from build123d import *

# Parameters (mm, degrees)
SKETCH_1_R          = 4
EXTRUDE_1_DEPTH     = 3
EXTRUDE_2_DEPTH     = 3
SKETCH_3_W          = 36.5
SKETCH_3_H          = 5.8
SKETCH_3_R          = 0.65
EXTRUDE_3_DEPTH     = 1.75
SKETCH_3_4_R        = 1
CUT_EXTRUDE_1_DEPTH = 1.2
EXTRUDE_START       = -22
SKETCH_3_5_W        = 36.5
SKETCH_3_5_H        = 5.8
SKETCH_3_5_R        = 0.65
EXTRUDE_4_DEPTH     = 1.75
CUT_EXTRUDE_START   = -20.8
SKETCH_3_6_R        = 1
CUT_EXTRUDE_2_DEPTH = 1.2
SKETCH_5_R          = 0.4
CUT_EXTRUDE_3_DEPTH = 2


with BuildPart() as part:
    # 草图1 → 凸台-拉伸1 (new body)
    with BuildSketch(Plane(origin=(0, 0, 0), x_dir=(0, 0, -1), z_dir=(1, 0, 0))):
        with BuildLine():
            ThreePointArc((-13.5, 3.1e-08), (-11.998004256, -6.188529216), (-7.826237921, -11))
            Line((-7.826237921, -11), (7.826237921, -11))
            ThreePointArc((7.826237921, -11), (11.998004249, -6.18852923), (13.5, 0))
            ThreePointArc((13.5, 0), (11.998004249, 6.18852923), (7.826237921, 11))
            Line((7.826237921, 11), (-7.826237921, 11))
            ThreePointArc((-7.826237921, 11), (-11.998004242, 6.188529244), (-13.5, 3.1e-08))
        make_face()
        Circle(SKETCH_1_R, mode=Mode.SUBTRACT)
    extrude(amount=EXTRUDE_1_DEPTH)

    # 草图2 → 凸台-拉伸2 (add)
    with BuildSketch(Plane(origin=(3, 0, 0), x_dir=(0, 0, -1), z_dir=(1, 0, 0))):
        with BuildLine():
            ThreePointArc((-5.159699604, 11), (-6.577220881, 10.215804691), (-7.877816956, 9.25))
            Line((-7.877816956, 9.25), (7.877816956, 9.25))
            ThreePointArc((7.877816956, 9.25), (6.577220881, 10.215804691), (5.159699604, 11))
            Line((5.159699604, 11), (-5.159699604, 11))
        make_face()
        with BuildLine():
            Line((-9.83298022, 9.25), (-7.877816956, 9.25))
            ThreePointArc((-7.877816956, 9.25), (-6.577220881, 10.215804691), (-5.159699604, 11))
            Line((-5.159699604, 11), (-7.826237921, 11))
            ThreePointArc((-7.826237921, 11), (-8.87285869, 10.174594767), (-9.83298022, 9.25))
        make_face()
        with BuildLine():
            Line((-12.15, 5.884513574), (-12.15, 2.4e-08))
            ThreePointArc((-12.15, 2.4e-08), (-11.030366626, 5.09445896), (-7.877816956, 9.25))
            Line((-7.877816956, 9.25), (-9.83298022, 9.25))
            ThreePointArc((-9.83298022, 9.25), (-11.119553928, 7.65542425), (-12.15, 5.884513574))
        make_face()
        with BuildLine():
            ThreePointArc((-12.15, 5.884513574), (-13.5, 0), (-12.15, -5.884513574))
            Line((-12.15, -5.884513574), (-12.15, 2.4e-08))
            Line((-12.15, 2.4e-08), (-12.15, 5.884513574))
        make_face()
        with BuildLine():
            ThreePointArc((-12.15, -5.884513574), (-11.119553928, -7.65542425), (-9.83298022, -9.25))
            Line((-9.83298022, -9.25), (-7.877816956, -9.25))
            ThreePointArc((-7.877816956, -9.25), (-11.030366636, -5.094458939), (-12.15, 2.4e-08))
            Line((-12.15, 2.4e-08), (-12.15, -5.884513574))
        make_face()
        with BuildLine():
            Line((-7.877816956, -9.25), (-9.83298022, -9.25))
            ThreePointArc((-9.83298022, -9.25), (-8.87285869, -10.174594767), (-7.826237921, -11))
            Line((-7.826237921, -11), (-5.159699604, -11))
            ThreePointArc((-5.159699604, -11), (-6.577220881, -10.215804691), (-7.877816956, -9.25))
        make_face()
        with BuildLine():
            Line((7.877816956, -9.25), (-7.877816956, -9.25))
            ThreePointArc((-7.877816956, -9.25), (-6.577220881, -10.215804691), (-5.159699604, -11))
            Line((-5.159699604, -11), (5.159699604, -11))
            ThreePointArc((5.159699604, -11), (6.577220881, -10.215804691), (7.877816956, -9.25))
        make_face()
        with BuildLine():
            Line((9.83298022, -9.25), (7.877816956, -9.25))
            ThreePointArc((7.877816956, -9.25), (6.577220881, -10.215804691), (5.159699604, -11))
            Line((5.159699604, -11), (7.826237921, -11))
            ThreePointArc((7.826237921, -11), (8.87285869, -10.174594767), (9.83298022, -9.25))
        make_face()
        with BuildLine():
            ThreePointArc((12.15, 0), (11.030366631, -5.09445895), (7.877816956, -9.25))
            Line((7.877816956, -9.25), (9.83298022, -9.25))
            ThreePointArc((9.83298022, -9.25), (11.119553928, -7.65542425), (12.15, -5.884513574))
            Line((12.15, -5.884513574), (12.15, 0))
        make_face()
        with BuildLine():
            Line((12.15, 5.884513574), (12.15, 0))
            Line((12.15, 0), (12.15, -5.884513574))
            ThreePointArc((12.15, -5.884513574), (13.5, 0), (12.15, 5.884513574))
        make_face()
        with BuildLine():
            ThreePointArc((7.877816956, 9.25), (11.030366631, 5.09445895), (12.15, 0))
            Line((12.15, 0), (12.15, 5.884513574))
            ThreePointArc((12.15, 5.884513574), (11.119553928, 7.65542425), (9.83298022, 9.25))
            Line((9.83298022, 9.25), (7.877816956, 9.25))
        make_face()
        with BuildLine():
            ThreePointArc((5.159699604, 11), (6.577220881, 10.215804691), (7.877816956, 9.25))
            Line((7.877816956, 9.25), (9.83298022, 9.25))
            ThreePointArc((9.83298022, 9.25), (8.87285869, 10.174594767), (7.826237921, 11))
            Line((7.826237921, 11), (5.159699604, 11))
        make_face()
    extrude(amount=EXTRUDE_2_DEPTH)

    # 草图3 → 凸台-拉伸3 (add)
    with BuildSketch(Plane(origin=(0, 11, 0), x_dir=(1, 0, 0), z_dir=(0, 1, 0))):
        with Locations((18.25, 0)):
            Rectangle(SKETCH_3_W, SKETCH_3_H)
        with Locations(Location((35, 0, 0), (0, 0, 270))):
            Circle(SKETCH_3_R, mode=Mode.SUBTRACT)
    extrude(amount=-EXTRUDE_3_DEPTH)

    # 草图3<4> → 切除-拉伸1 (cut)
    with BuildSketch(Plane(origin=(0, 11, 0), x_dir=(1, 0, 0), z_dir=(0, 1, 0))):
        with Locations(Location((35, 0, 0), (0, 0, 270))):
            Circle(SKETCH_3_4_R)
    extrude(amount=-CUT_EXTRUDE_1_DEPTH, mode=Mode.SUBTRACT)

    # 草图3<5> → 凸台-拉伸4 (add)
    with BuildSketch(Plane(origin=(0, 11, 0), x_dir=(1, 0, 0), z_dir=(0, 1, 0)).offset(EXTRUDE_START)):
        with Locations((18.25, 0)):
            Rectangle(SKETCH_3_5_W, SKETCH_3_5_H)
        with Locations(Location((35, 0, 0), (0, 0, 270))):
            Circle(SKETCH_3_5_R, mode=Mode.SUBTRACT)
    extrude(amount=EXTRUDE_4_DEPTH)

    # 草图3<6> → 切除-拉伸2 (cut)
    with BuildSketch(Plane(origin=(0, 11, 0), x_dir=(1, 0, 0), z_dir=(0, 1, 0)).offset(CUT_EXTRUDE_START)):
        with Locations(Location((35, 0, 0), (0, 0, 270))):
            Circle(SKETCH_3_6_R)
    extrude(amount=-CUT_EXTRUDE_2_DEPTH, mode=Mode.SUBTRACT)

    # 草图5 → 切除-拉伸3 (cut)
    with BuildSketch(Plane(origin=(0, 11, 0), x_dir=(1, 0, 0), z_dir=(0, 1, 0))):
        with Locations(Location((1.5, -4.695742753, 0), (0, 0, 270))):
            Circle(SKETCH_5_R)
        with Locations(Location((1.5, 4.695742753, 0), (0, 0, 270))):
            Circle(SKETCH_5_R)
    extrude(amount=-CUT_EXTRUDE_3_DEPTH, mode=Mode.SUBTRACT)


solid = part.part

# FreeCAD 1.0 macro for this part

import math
import FreeCAD as App
import Part
import Sketcher

V = App.Vector
Q = App.Units.Quantity

doc = App.newDocument("Part")
body = doc.addObject("PartDesign::Body", "Body")

# Sketch on YZ plane
sketch1 = body.newObject("Sketcher::SketchObject", "Sketch")
sketch1.AttachmentSupport = (doc.getObject("YZ_Plane"), [""])
sketch1.MapMode = "FlatFace"
sketch1.addGeometry([
    Part.ArcOfCircle(Part.Circle(V(0, 0, 0), V(0, 0, 1), 13.5), math.radians(90), math.radians(145)),  # 0
    Part.LineSegment(V(-11, 7.8, 0), V(-11, -7.8, 0)),  # 1
    Part.ArcOfCircle(Part.Circle(V(0, 0, 0), V(0, 0, 1), 13.5), math.radians(-145), math.radians(-90)),  # 2
    Part.ArcOfCircle(Part.Circle(V(0, 0, 0), V(0, 0, 1), 13.5), math.radians(-90), math.radians(-35)),  # 3
    Part.LineSegment(V(11, -7.8, 0), V(11, 7.8, 0)),  # 4
    Part.ArcOfCircle(Part.Circle(V(0, 0, 0), V(0, 0, 1), 13.5), math.radians(35), math.radians(90)),  # 5
    Part.Circle(V(0, 0, 0), V(0, 0, 1), 4),  # 6
], False)
sketch1.addConstraint([
    Sketcher.Constraint("Coincident", 0, 2, 1, 1),
    Sketcher.Constraint("Coincident", 1, 2, 2, 1),
    Sketcher.Constraint("Tangent", 2, 2, 3, 1),
    Sketcher.Constraint("Coincident", 3, 2, 4, 1),
    Sketcher.Constraint("Coincident", 4, 2, 5, 1),
    Sketcher.Constraint("Tangent", 5, 2, 0, 1),
    Sketcher.Constraint("Vertical", 1),
    Sketcher.Constraint("Vertical", 4),
    Sketcher.Constraint("Coincident", 0, 3, -1, 1),
    Sketcher.Constraint("Coincident", 2, 3, -1, 1),
    Sketcher.Constraint("Coincident", 6, 3, -1, 1),
    Sketcher.Constraint("Equal", 0, 2),
    Sketcher.Constraint("Equal", 2, 3),
    Sketcher.Constraint("Equal", 3, 5),
    Sketcher.Constraint("PointOnObject", 2, 2, -2),
    Sketcher.Constraint("PointOnObject", 5, 2, -2),
    Sketcher.Constraint("Horizontal", 1, 2, 3, 2),
    Sketcher.Constraint("Diameter", 6, Q("8 mm")),
    Sketcher.Constraint("Radius", 0, Q("13.5 mm")),
    Sketcher.Constraint("DistanceX", 0, 2, -1, 1, Q("11 mm")),
])
pad1 = body.newObject("PartDesign::Pad", "Pad")
pad1.Profile = sketch1
pad1.Length = 3

# Sketch on YZ plane
sketch2 = body.newObject("Sketcher::SketchObject", "Sketch001")
sketch2.AttachmentSupport = (doc.getObject("YZ_Plane"), [""])
sketch2.MapMode = "FlatFace"
sketch2.AttachmentOffset = App.Placement(V(0, 0, 3), App.Rotation())
sketch2.addGeometry([
    Part.ArcOfCircle(Part.Circle(V(0, 0, 0), V(0, 0, 1), 13.5), math.radians(-64.16), math.radians(-46.75)),  # 0
    Part.ArcOfCircle(Part.Circle(V(0, 0, 0), V(0, 0, 1), 13.5), math.radians(-46.75), math.radians(-35.43)),  # 1
    Part.LineSegment(V(11, -7.8, 0), V(11, 7.8, 0)),  # 2
    Part.ArcOfCircle(Part.Circle(V(0, 0, 0), V(0, 0, 1), 13.5), math.radians(35.43), math.radians(46.75)),  # 3
    Part.ArcOfCircle(Part.Circle(V(0, 0, 0), V(0, 0, 1), 13.5), math.radians(46.75), math.radians(64.16)),  # 4
    Part.ArcOfCircle(Part.Circle(V(0, 0, 0), V(0, 0, 1), 13.5), math.radians(64), math.radians(116)),  # 5
    Part.ArcOfCircle(Part.Circle(V(0, 0, 0), V(0, 0, 1), 13.5), math.radians(115.84), math.radians(133.25)),  # 6
    Part.ArcOfCircle(Part.Circle(V(0, 0, 0), V(0, 0, 1), 13.5), math.radians(133.25), math.radians(144.57)),  # 7
    Part.LineSegment(V(-11, 7.8, 0), V(-11, -7.8, 0)),  # 8
    Part.ArcOfCircle(Part.Circle(V(0, 0, 0), V(0, 0, 1), 13.5), math.radians(-144.57), math.radians(-133.25)),  # 9
    Part.ArcOfCircle(Part.Circle(V(0, 0, 0), V(0, 0, 1), 13.5), math.radians(-133.25), math.radians(-115.84)),  # 10
    Part.ArcOfCircle(Part.Circle(V(0, 0, 0), V(0, 0, 1), 13.5), math.radians(-116), math.radians(-64)),  # 11
    Part.LineSegment(V(9.2, 7.9, 0), V(9.2, -7.9, 0)),  # 12
    Part.ArcOfCircle(Part.Circle(V(0, 0, 0), V(0, 0, 1), 12.1), math.radians(-90), math.radians(-40)),  # 13
    Part.ArcOfCircle(Part.Circle(V(0, 0, 0), V(0, 0, 1), 12.1), math.radians(-140), math.radians(-90)),  # 14
    Part.LineSegment(V(-9.2, -7.9, 0), V(-9.2, 7.9, 0)),  # 15
    Part.ArcOfCircle(Part.Circle(V(0, 0, 0), V(0, 0, 1), 12.1), math.radians(90), math.radians(140)),  # 16
    Part.ArcOfCircle(Part.Circle(V(0, 0, 0), V(0, 0, 1), 12.1), math.radians(40), math.radians(90)),  # 17
], False)
sketch2.addConstraint([
    Sketcher.Constraint("Tangent", 0, 2, 1, 1),
    Sketcher.Constraint("Coincident", 1, 2, 2, 1),
    Sketcher.Constraint("Coincident", 2, 2, 3, 1),
    Sketcher.Constraint("Tangent", 3, 2, 4, 1),
    Sketcher.Constraint("Tangent", 4, 2, 5, 1),
    Sketcher.Constraint("Tangent", 5, 2, 6, 1),
    Sketcher.Constraint("Tangent", 6, 2, 7, 1),
    Sketcher.Constraint("Coincident", 7, 2, 8, 1),
    Sketcher.Constraint("Coincident", 8, 2, 9, 1),
    Sketcher.Constraint("Tangent", 9, 2, 10, 1),
    Sketcher.Constraint("Tangent", 10, 2, 11, 1),
    Sketcher.Constraint("Tangent", 11, 2, 0, 1),
    Sketcher.Constraint("Coincident", 12, 2, 13, 2),
    Sketcher.Constraint("Tangent", 13, 1, 14, 2),
    Sketcher.Constraint("Coincident", 14, 1, 15, 1),
    Sketcher.Constraint("Coincident", 15, 2, 16, 2),
    Sketcher.Constraint("Tangent", 16, 1, 17, 2),
    Sketcher.Constraint("Coincident", 17, 1, 12, 1),
    Sketcher.Constraint("Vertical", 2),
    Sketcher.Constraint("Vertical", 8),
    Sketcher.Constraint("Vertical", 12),
    Sketcher.Constraint("Vertical", 15),
    Sketcher.Constraint("Coincident", 0, 3, -1, 1),
    Sketcher.Constraint("Coincident", 3, 3, -1, 1),
    Sketcher.Constraint("Coincident", 5, 3, -1, 1),
    Sketcher.Constraint("Coincident", 7, 3, -1, 1),
    Sketcher.Constraint("Coincident", 9, 3, -1, 1),
    Sketcher.Constraint("Coincident", 13, 3, -1, 1),
    Sketcher.Constraint("Coincident", 16, 3, -1, 1),
    Sketcher.Constraint("Equal", 0, 1),
    Sketcher.Constraint("Equal", 1, 3),
    Sketcher.Constraint("Equal", 7, 9),
    Sketcher.Constraint("Equal", 13, 14),
    Sketcher.Constraint("Equal", 14, 16),
    Sketcher.Constraint("Equal", 16, 17),
    Sketcher.Constraint("PointOnObject", 13, 1, -2),
    Sketcher.Constraint("PointOnObject", 16, 1, -2),
    Sketcher.Constraint("Horizontal", 4, 2, 5, 2),
    Sketcher.Constraint("Horizontal", 3, 2, 6, 2),
    Sketcher.Constraint("Horizontal", 2, 2, 7, 2),
    Sketcher.Constraint("Horizontal", 0, 2, 9, 2),
    Sketcher.Constraint("Horizontal", 10, 2, 11, 2),
    Sketcher.Constraint("Horizontal", 11, 2, 13, 1),
    Sketcher.Constraint("Horizontal", 12, 2, 14, 1),
    Sketcher.Constraint("Horizontal", 5, 2, 16, 1),
    Sketcher.Constraint("Vertical", 0, 2, 3, 2),
    Sketcher.Constraint("Vertical", 3, 2, 12, 2),
    Sketcher.Constraint("Radius", 0, Q("13.5 mm")),
    Sketcher.Constraint("Radius", 13, Q("12.15 mm")),
    Sketcher.Constraint("DistanceX", -1, 1, 1, 2, Q("11 mm")),
    Sketcher.Constraint("DistanceX", -1, 1, 0, 2, Q("9.25 mm")),
])
pad2 = body.newObject("PartDesign::Pad", "Pad001")
pad2.Profile = sketch2
pad2.Length = 3

# Sketch on XZ plane
sketch3 = body.newObject("Sketcher::SketchObject", "Sketch002")
sketch3.AttachmentSupport = (doc.getObject("XZ_Plane"), [""])
sketch3.MapMode = "FlatFace"
sketch3.AttachmentOffset = App.Placement(V(0, 0, -11), App.Rotation())
sketch3.addGeometry([
    Part.LineSegment(V(0, -2.9, 0), V(0, 2.9, 0)),  # 0
    Part.LineSegment(V(0, 2.9, 0), V(36.5, 2.9, 0)),  # 1
    Part.LineSegment(V(36.5, 2.9, 0), V(36.5, -2.9, 0)),  # 2
    Part.LineSegment(V(36.5, -2.9, 0), V(0, -2.9, 0)),  # 3
    Part.Circle(V(35, 0, 0), V(0, 0, 1), 0.7),  # 4
], False)
sketch3.addConstraint([
    Sketcher.Constraint("Coincident", 0, 2, 1, 1),
    Sketcher.Constraint("Coincident", 1, 2, 2, 1),
    Sketcher.Constraint("Coincident", 2, 2, 3, 1),
    Sketcher.Constraint("Coincident", 3, 2, 0, 1),
    Sketcher.Constraint("Vertical", 0),
    Sketcher.Constraint("Horizontal", 1),
    Sketcher.Constraint("Vertical", 2),
    Sketcher.Constraint("Horizontal", 3),
    Sketcher.Constraint("Symmetric", 0, 2, 3, 2, -1, 1),
    Sketcher.Constraint("PointOnObject", 4, 3, -1),
    Sketcher.Constraint("Diameter", 4, Q("1.3 mm")),
    Sketcher.Constraint("DistanceX", 1, 1, 1, 2, Q("36.5 mm")),
    Sketcher.Constraint("DistanceY", 0, 1, 0, 2, Q("5.8 mm")),
    Sketcher.Constraint("DistanceX", -1, 1, 4, 3, Q("35 mm")),
])
pad3 = body.newObject("PartDesign::Pad", "Pad002")
pad3.Profile = sketch3
pad3.Length = 1.75

# Sketch on XZ plane
sketch4 = body.newObject("Sketcher::SketchObject", "Sketch003")
sketch4.AttachmentSupport = (doc.getObject("XZ_Plane"), [""])
sketch4.MapMode = "FlatFace"
sketch4.AttachmentOffset = App.Placement(V(0, 0, -11), App.Rotation())
sketch4.addGeometry(Part.Circle(V(35, 0, 0), V(0, 0, 1), 1), False)
sketch4.addConstraint([
    Sketcher.Constraint("PointOnObject", 0, 3, -1),
    Sketcher.Constraint("Diameter", 0, Q("2 mm")),
    Sketcher.Constraint("DistanceX", -1, 1, 0, 3, Q("35 mm")),
])
pocket1 = body.newObject("PartDesign::Pocket", "Pocket")
pocket1.Profile = sketch4
pocket1.Length = 1.2
pocket1.Reversed = True

# Sketch on XZ plane
sketch5 = body.newObject("Sketcher::SketchObject", "Sketch004")
sketch5.AttachmentSupport = (doc.getObject("XZ_Plane"), [""])
sketch5.MapMode = "FlatFace"
sketch5.AttachmentOffset = App.Placement(V(0, 0, 11), App.Rotation())
sketch5.addGeometry([
    Part.LineSegment(V(0, -2.9, 0), V(0, 2.9, 0)),  # 0
    Part.LineSegment(V(0, 2.9, 0), V(36.5, 2.9, 0)),  # 1
    Part.LineSegment(V(36.5, 2.9, 0), V(36.5, -2.9, 0)),  # 2
    Part.LineSegment(V(36.5, -2.9, 0), V(0, -2.9, 0)),  # 3
    Part.Circle(V(35, 0, 0), V(0, 0, 1), 0.7),  # 4
], False)
sketch5.addConstraint([
    Sketcher.Constraint("Coincident", 0, 2, 1, 1),
    Sketcher.Constraint("Coincident", 1, 2, 2, 1),
    Sketcher.Constraint("Coincident", 2, 2, 3, 1),
    Sketcher.Constraint("Coincident", 3, 2, 0, 1),
    Sketcher.Constraint("Vertical", 0),
    Sketcher.Constraint("Horizontal", 1),
    Sketcher.Constraint("Vertical", 2),
    Sketcher.Constraint("Horizontal", 3),
    Sketcher.Constraint("Symmetric", 0, 2, 3, 2, -1, 1),
    Sketcher.Constraint("PointOnObject", 4, 3, -1),
    Sketcher.Constraint("Diameter", 4, Q("1.3 mm")),
    Sketcher.Constraint("DistanceX", 1, 1, 1, 2, Q("36.5 mm")),
    Sketcher.Constraint("DistanceY", 0, 1, 0, 2, Q("5.8 mm")),
    Sketcher.Constraint("DistanceX", -1, 1, 4, 3, Q("35 mm")),
])
pad4 = body.newObject("PartDesign::Pad", "Pad003")
pad4.Profile = sketch5
pad4.Length = 1.75
pad4.Reversed = True

# Sketch on XZ plane
sketch6 = body.newObject("Sketcher::SketchObject", "Sketch005")
sketch6.AttachmentSupport = (doc.getObject("XZ_Plane"), [""])
sketch6.MapMode = "FlatFace"
sketch6.AttachmentOffset = App.Placement(V(0, 0, 9.8), App.Rotation())
sketch6.addGeometry(Part.Circle(V(35, 0, 0), V(0, 0, 1), 1), False)
sketch6.addConstraint([
    Sketcher.Constraint("PointOnObject", 0, 3, -1),
    Sketcher.Constraint("Diameter", 0, Q("2 mm")),
    Sketcher.Constraint("DistanceX", -1, 1, 0, 3, Q("35 mm")),
])
pocket2 = body.newObject("PartDesign::Pocket", "Pocket001")
pocket2.Profile = sketch6
pocket2.Length = 1.2
pocket2.Reversed = True

# Sketch on XZ plane
sketch7 = body.newObject("Sketcher::SketchObject", "Sketch006")
sketch7.AttachmentSupport = (doc.getObject("XZ_Plane"), [""])
sketch7.MapMode = "FlatFace"
sketch7.AttachmentOffset = App.Placement(V(0, 0, -11), App.Rotation())
sketch7.addGeometry([
    Part.Circle(V(1.5, 4.7, 0), V(0, 0, 1), 0.4),
    Part.Circle(V(1.5, -4.7, 0), V(0, 0, 1), 0.4),
], False)
sketch7.addConstraint([
    Sketcher.Constraint("Equal", 0, 1),
    Sketcher.Constraint("Symmetric", 0, 3, 1, 3, -1),
    Sketcher.Constraint("Diameter", 0, Q("0.8 mm")),
    Sketcher.Constraint("DistanceX", -1, 1, 0, 3, Q("1.5 mm")),
    Sketcher.Constraint("DistanceY", -1, 1, 0, 3, Q("4.695743 mm")),
])
pocket3 = body.newObject("PartDesign::Pocket", "Pocket002")
pocket3.Profile = sketch7
pocket3.Length = 2
pocket3.Reversed = True

doc.recompute()
